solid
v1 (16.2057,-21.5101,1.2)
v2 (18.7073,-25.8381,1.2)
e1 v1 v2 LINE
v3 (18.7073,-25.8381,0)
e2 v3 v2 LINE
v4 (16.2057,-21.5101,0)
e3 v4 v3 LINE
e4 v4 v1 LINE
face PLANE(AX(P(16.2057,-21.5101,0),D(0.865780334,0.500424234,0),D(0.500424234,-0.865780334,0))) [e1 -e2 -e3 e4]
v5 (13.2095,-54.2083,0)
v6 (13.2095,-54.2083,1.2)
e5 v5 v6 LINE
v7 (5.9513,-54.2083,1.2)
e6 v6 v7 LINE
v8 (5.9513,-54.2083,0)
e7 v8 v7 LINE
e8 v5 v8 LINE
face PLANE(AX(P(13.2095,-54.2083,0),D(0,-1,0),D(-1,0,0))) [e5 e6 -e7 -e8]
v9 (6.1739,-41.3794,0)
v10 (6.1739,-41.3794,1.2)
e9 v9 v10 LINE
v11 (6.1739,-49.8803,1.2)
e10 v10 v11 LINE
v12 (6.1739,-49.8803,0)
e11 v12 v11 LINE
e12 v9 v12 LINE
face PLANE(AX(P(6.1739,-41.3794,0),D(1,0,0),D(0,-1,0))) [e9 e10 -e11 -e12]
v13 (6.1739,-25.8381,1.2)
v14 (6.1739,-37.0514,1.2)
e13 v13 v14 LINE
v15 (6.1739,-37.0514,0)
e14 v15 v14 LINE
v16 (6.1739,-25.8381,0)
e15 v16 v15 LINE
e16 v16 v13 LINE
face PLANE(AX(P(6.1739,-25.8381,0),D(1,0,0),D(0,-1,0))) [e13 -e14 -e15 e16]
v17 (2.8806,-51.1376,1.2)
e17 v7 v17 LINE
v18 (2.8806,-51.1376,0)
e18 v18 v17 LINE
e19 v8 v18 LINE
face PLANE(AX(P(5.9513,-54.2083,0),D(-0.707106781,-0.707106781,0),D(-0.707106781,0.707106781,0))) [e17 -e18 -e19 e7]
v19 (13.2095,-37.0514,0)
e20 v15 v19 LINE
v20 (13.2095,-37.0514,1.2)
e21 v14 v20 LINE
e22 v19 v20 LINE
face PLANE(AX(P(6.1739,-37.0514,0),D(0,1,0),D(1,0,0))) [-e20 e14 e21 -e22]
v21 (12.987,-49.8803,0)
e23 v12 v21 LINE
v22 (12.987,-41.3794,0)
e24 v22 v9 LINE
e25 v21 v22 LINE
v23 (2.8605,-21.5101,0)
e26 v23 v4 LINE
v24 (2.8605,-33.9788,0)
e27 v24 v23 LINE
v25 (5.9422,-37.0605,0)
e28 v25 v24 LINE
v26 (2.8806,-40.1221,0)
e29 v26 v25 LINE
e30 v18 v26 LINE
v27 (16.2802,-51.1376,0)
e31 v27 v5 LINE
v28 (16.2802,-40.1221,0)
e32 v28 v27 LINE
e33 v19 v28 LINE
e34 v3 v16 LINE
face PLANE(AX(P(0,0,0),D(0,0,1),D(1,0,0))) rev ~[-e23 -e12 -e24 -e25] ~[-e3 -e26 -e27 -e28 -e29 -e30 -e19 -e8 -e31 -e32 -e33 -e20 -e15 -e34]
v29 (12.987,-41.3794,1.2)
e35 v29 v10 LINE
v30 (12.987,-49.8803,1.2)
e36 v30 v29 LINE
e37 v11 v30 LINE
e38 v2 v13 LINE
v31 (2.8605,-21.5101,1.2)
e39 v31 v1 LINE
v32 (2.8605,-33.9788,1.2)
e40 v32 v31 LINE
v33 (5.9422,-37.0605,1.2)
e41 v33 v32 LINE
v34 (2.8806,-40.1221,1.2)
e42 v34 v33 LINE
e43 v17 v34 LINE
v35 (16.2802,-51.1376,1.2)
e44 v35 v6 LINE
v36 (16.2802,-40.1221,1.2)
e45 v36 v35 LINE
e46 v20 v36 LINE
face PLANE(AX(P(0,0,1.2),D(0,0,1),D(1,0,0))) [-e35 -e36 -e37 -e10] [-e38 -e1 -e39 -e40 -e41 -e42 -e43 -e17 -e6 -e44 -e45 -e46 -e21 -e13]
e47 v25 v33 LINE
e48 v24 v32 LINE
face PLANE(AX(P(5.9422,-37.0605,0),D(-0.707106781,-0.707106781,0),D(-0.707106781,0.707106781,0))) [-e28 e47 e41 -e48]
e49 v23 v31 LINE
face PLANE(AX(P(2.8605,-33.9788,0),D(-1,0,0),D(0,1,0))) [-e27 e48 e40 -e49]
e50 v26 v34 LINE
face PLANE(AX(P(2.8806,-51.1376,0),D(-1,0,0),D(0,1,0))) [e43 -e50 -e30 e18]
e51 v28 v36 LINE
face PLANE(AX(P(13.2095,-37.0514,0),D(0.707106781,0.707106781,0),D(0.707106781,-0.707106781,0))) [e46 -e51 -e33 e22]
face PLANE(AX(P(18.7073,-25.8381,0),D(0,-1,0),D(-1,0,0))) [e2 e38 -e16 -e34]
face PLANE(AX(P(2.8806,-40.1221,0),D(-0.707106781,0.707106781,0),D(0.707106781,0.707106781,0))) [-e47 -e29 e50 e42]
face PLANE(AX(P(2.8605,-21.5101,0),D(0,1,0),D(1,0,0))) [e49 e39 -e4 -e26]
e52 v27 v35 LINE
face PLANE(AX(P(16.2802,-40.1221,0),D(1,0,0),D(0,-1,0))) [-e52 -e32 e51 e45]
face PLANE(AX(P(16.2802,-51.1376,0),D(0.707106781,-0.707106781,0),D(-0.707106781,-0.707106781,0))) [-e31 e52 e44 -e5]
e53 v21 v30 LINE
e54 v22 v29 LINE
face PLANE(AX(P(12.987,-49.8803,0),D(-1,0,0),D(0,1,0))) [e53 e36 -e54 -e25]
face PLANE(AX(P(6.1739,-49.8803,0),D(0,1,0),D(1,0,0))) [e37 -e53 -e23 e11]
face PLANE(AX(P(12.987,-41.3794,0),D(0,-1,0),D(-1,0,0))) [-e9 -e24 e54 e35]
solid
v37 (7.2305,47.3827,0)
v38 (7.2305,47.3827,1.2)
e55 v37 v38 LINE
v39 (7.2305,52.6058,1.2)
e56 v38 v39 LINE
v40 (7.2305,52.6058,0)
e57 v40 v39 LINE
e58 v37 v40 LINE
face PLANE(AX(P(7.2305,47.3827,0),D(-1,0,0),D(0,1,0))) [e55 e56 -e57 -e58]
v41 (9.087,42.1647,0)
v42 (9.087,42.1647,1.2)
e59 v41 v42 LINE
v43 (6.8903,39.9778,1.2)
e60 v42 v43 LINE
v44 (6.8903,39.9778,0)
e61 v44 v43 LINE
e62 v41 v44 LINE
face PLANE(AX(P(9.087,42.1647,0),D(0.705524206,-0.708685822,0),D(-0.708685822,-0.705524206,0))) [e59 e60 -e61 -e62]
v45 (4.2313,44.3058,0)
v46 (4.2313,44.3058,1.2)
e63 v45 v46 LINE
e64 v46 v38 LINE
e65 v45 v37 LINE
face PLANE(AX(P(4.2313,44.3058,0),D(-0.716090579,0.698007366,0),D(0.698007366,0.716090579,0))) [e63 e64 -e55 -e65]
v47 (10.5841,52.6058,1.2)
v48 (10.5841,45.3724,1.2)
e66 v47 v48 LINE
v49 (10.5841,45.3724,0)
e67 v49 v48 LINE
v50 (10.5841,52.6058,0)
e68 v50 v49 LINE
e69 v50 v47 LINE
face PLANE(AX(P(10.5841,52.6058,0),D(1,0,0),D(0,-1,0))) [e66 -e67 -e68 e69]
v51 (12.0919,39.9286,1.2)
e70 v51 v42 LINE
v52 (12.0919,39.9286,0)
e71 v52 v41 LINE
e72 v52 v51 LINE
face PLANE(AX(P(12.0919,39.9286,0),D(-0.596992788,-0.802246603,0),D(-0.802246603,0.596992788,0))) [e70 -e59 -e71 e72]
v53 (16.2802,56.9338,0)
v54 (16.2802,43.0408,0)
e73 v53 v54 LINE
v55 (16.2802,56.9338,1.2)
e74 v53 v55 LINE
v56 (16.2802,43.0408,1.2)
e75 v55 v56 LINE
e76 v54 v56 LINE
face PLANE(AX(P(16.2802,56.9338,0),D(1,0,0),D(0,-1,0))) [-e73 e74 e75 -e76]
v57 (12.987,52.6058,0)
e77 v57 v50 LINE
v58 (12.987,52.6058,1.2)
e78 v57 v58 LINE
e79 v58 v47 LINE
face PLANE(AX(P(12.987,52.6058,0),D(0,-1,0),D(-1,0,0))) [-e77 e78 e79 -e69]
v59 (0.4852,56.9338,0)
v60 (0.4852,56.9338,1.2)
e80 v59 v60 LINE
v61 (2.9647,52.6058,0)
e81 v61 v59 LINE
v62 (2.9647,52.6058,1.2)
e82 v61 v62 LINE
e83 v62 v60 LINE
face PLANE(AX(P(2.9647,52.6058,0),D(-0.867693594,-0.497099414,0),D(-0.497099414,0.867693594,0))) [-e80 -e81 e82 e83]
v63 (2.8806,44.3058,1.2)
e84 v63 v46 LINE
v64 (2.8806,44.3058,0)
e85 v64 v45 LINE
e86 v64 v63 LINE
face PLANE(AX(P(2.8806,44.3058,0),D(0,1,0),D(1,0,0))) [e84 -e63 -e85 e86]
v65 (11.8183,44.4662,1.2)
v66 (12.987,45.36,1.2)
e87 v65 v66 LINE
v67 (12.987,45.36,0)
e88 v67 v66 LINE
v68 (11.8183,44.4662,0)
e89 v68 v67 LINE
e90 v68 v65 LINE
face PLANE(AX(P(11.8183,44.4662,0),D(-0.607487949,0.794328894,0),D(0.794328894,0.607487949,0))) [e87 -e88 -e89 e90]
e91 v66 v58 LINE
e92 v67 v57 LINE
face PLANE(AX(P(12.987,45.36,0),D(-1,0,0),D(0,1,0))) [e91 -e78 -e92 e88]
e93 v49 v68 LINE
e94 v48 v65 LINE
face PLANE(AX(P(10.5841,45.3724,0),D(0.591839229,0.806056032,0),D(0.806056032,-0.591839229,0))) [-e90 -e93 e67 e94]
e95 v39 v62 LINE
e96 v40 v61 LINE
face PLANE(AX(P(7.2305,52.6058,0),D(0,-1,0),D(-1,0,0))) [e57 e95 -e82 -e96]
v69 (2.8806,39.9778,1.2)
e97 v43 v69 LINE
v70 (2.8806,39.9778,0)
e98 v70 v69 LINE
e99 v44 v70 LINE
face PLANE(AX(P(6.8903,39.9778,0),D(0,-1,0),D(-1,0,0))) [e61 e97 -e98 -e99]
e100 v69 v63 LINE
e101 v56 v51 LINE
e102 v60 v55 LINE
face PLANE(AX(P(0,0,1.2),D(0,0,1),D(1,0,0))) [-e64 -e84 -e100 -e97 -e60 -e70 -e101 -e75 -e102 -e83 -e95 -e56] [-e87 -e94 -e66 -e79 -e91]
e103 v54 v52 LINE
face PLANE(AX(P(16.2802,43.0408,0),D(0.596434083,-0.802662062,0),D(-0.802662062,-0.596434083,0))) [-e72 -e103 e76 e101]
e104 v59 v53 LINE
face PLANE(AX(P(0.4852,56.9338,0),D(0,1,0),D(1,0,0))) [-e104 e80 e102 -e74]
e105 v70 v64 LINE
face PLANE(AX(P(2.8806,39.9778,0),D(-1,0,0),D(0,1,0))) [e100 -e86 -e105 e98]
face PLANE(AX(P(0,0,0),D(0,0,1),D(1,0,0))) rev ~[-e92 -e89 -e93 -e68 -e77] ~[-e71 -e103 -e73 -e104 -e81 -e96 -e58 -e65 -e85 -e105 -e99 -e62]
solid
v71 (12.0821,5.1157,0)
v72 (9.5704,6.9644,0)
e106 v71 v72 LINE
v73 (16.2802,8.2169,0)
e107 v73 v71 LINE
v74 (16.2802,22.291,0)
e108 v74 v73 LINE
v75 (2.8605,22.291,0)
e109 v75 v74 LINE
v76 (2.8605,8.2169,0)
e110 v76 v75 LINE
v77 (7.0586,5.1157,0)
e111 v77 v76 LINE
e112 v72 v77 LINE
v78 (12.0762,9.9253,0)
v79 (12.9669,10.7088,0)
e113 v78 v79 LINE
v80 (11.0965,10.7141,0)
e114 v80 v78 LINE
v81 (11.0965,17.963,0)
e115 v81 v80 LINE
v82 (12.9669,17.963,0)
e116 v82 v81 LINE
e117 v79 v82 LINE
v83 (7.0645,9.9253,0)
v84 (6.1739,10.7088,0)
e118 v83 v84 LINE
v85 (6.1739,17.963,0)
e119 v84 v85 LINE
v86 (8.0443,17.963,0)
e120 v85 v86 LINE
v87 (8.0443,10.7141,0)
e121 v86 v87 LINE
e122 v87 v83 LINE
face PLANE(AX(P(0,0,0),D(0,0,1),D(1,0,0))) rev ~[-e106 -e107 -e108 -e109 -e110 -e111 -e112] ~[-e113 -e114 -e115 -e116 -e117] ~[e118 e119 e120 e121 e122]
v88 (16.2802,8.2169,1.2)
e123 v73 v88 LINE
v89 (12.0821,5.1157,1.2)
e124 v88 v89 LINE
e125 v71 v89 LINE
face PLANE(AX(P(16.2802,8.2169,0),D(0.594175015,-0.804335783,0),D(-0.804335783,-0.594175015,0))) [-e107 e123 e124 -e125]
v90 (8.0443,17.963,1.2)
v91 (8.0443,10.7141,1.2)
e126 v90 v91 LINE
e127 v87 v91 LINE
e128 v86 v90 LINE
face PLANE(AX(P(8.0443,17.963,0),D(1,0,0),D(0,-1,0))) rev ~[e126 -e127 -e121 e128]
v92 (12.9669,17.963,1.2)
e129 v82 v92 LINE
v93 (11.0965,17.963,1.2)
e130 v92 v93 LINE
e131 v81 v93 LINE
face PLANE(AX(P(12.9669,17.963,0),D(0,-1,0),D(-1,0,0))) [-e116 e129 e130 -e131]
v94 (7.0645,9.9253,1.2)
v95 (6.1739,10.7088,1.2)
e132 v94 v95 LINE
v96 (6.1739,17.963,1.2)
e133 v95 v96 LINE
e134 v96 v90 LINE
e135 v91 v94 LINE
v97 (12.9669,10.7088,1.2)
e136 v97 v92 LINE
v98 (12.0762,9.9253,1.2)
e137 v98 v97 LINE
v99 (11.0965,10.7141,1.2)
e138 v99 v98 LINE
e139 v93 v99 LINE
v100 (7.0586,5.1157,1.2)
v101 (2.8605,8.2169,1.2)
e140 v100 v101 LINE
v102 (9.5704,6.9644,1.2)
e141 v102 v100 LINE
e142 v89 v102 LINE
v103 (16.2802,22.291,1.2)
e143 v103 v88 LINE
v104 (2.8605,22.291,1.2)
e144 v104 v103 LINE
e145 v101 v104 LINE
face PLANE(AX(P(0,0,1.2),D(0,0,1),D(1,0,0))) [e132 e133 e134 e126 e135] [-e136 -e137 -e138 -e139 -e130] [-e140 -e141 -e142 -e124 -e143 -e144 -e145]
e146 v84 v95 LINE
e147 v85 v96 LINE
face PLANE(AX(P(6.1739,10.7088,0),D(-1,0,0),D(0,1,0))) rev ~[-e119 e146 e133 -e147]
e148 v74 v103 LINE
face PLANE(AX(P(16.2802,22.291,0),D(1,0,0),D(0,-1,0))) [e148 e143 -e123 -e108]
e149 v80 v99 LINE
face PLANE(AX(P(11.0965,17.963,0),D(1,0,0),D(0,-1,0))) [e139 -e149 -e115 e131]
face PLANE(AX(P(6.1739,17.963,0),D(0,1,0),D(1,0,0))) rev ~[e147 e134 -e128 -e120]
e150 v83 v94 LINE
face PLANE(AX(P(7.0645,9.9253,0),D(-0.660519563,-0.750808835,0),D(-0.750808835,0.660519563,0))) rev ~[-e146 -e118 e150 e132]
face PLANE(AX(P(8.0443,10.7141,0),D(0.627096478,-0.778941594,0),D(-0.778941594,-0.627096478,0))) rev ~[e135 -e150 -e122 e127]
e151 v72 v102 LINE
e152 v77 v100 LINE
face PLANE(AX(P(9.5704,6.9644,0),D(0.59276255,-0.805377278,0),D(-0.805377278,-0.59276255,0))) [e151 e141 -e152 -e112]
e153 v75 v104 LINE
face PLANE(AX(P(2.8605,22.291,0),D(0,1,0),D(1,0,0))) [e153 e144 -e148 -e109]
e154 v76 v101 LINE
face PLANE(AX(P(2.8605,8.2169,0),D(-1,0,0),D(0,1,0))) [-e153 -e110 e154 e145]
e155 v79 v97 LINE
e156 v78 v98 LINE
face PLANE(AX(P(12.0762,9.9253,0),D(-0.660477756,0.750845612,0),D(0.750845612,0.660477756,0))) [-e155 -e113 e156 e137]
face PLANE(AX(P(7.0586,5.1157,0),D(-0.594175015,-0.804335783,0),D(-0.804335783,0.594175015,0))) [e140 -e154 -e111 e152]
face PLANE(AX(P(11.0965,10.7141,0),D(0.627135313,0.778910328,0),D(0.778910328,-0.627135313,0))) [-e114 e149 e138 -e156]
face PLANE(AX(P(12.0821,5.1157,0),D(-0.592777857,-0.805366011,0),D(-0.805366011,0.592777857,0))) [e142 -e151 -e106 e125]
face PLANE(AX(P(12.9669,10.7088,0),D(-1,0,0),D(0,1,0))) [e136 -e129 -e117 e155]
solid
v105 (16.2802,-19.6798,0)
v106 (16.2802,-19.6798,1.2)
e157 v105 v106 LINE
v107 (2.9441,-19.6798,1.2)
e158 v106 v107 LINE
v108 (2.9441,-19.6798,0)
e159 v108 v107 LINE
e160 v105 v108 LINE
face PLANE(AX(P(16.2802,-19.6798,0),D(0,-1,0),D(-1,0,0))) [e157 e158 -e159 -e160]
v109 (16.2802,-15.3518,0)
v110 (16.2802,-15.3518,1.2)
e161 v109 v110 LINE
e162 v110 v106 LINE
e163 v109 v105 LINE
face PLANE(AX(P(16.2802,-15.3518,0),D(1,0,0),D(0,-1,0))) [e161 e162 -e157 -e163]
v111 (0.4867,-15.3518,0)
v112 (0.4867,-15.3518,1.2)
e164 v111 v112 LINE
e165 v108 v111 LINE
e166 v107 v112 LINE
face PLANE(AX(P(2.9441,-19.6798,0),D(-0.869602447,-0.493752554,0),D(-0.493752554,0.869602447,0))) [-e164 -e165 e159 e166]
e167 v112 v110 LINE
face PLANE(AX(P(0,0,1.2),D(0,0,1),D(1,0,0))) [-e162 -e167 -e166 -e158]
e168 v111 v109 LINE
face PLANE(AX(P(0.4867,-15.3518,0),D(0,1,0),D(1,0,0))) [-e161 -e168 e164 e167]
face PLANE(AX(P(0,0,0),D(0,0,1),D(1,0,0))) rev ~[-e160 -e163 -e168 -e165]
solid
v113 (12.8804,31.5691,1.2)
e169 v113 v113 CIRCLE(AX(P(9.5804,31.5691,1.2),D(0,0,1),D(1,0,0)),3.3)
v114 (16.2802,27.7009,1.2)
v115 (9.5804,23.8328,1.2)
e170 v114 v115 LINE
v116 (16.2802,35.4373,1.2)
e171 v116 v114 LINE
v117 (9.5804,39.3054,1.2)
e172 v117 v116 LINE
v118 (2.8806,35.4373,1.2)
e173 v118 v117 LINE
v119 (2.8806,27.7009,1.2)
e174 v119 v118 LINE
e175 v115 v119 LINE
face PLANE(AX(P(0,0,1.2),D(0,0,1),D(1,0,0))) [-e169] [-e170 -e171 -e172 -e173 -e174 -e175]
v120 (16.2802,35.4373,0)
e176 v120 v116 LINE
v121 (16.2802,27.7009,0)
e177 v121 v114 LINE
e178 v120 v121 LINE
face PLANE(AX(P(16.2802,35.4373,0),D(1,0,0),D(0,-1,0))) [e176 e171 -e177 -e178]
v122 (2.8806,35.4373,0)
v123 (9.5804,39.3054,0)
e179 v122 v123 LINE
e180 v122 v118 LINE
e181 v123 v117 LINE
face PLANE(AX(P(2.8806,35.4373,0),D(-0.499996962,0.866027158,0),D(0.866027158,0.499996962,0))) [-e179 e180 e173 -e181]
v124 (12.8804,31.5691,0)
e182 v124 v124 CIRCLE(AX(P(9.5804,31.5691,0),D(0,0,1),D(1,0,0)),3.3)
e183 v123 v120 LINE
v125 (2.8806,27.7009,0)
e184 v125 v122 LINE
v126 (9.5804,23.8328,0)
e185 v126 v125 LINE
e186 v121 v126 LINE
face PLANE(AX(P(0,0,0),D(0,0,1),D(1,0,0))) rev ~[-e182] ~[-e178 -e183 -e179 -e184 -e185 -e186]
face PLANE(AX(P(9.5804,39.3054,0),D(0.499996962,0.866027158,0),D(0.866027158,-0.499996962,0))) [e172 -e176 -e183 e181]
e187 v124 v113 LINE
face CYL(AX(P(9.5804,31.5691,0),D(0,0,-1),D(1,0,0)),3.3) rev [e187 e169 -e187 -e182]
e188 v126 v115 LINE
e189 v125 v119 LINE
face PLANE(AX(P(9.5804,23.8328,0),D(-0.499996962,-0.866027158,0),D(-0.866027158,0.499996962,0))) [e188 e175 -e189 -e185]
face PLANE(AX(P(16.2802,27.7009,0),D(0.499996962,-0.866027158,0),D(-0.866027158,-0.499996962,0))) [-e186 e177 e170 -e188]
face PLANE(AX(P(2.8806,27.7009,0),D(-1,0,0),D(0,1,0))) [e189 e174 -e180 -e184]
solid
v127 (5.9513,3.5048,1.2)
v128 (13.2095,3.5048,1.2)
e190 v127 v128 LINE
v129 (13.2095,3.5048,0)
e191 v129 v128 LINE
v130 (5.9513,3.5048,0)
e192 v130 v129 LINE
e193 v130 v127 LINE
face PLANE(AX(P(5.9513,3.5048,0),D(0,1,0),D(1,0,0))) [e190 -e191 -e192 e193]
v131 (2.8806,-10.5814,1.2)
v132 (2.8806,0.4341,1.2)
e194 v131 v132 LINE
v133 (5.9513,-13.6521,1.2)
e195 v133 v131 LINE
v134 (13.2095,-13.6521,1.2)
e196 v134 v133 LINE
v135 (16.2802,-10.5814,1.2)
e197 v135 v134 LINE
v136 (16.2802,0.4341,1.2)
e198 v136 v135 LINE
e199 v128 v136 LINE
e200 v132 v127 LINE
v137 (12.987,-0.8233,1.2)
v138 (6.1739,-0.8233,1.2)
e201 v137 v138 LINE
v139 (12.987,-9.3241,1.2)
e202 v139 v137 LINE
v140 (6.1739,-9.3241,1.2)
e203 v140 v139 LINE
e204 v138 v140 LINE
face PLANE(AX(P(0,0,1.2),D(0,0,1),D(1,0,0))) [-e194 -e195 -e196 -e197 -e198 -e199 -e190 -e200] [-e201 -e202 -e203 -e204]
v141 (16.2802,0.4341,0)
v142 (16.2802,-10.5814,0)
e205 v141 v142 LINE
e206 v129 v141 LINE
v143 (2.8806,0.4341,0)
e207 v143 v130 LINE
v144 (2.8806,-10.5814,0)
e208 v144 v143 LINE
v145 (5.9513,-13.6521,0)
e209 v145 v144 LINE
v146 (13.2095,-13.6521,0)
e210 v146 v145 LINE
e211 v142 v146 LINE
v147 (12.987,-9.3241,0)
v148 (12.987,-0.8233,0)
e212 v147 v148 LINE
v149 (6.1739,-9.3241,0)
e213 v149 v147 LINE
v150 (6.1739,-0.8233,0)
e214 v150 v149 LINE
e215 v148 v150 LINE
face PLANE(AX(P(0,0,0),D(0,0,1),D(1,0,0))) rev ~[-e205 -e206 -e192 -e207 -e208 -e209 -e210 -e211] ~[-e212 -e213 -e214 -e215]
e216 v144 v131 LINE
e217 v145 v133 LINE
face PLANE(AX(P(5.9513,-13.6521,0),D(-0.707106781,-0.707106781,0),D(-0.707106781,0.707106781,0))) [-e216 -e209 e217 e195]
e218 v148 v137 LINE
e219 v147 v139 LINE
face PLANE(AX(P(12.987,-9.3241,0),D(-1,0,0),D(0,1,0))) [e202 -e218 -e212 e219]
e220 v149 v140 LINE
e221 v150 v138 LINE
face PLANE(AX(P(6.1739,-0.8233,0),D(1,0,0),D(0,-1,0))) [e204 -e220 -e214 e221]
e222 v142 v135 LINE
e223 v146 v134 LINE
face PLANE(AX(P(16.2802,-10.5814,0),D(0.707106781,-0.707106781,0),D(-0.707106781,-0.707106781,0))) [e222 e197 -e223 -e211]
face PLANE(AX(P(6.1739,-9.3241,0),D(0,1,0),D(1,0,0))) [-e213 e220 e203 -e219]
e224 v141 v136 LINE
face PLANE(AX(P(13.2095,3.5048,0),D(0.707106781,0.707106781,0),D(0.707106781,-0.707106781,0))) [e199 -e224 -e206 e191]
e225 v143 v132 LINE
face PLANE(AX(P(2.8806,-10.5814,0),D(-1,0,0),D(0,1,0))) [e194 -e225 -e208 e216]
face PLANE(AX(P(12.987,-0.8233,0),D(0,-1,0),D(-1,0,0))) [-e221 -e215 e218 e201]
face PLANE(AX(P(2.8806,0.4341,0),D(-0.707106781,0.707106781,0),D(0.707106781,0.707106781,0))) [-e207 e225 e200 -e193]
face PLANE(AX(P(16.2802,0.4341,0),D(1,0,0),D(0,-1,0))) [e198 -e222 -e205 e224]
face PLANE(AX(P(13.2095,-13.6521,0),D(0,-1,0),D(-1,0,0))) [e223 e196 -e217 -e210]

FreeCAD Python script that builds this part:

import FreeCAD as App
import Part
import Sketcher
from FreeCAD import Vector
Q = App.Units.Quantity

doc = App.newDocument("Part")
body = doc.addObject("PartDesign::Body", "Body")
body.AllowCompound = True

sketch1 = body.newObject("Sketcher::SketchObject", "Sketch")
sketch1.AttachmentSupport = (doc.getObject("XY_Plane"), [""])
sketch1.MapMode = "FlatFace"
sketch1.addGeometry(Part.LineSegment(Vector(2.9647, 52.6058, 0), Vector(7.2305, 52.6058, 0)), False)
sketch1.addGeometry(Part.LineSegment(Vector(7.2305, 52.6058, 0), Vector(7.2305, 47.3827, 0)), False)
sketch1.addGeometry(Part.LineSegment(Vector(7.2305, 47.3827, 0), Vector(4.2313, 44.3058, 0)), False)
sketch1.addGeometry(Part.LineSegment(Vector(4.2313, 44.3058, 0), Vector(2.8806, 44.3058, 0)), False)
sketch1.addGeometry(Part.LineSegment(Vector(2.8806, 44.3058, 0), Vector(2.8806, 39.9778, 0)), False)
sketch1.addGeometry(Part.LineSegment(Vector(2.8806, 39.9778, 0), Vector(6.8903, 39.9778, 0)), False)
sketch1.addGeometry(Part.LineSegment(Vector(6.8903, 39.9778, 0), Vector(9.087, 42.1647, 0)), False)
sketch1.addGeometry(Part.LineSegment(Vector(9.087, 42.1647, 0), Vector(12.0919, 39.9286, 0)), False)
sketch1.addGeometry(Part.LineSegment(Vector(12.0919, 39.9286, 0), Vector(16.2802, 43.0408, 0)), False)
sketch1.addGeometry(Part.LineSegment(Vector(16.2802, 43.0408, 0), Vector(16.2802, 56.9338, 0)), False)
sketch1.addGeometry(Part.LineSegment(Vector(16.2802, 56.9338, 0), Vector(0.4852, 56.9338, 0)), False)
sketch1.addGeometry(Part.LineSegment(Vector(0.4852, 56.9338, 0), Vector(2.9647, 52.6058, 0)), False)
sketch1.addGeometry(Part.LineSegment(Vector(12.987, 45.36, 0), Vector(11.8183, 44.4662, 0)), False)
sketch1.addGeometry(Part.LineSegment(Vector(11.8183, 44.4662, 0), Vector(10.5841, 45.3724, 0)), False)
sketch1.addGeometry(Part.LineSegment(Vector(10.5841, 45.3724, 0), Vector(10.5841, 52.6058, 0)), False)
sketch1.addGeometry(Part.LineSegment(Vector(10.5841, 52.6058, 0), Vector(12.987, 52.6058, 0)), False)
sketch1.addGeometry(Part.LineSegment(Vector(12.987, 52.6058, 0), Vector(12.987, 45.36, 0)), False)
sketch1.addGeometry(Part.LineSegment(Vector(16.2802, 35.4373, 0), Vector(9.5804, 39.3054, 0)), False)
sketch1.addGeometry(Part.LineSegment(Vector(9.5804, 39.3054, 0), Vector(2.8806, 35.4373, 0)), False)
sketch1.addGeometry(Part.LineSegment(Vector(2.8806, 35.4373, 0), Vector(2.8806, 27.7009, 0)), False)
sketch1.addGeometry(Part.LineSegment(Vector(2.8806, 27.7009, 0), Vector(9.5804, 23.8328, 0)), False)
sketch1.addGeometry(Part.LineSegment(Vector(9.5804, 23.8328, 0), Vector(16.2802, 27.7009, 0)), False)
sketch1.addGeometry(Part.LineSegment(Vector(16.2802, 27.7009, 0), Vector(16.2802, 35.4373, 0)), False)
sketch1.addGeometry(Part.Circle(Vector(9.5804, 31.5691, 0), Vector(0, 0, 1), 3.3), False)
sketch1.addGeometry(Part.LineSegment(Vector(16.2802, 8.2169, 0), Vector(16.2802, 22.291, 0)), False)
sketch1.addGeometry(Part.LineSegment(Vector(16.2802, 22.291, 0), Vector(2.8605, 22.291, 0)), False)
sketch1.addGeometry(Part.LineSegment(Vector(2.8605, 22.291, 0), Vector(2.8605, 8.2169, 0)), False)
sketch1.addGeometry(Part.LineSegment(Vector(2.8605, 8.2169, 0), Vector(7.0586, 5.1157, 0)), False)
sketch1.addGeometry(Part.LineSegment(Vector(7.0586, 5.1157, 0), Vector(9.5704, 6.9644, 0)), False)
sketch1.addGeometry(Part.LineSegment(Vector(9.5704, 6.9644, 0), Vector(12.0821, 5.1157, 0)), False)
sketch1.addGeometry(Part.LineSegment(Vector(12.0821, 5.1157, 0), Vector(16.2802, 8.2169, 0)), False)
sketch1.addGeometry(Part.LineSegment(Vector(6.1739, 17.963, 0), Vector(8.0443, 17.963, 0)), False)
sketch1.addGeometry(Part.LineSegment(Vector(8.0443, 17.963, 0), Vector(8.0443, 10.7141, 0)), False)
sketch1.addGeometry(Part.LineSegment(Vector(8.0443, 10.7141, 0), Vector(7.0645, 9.9253, 0)), False)
sketch1.addGeometry(Part.LineSegment(Vector(7.0645, 9.9253, 0), Vector(6.1739, 10.7088, 0)), False)
sketch1.addGeometry(Part.LineSegment(Vector(6.1739, 10.7088, 0), Vector(6.1739, 17.963, 0)), False)
sketch1.addGeometry(Part.LineSegment(Vector(12.0762, 9.9253, 0), Vector(11.0965, 10.7141, 0)), False)
sketch1.addGeometry(Part.LineSegment(Vector(11.0965, 10.7141, 0), Vector(11.0965, 17.963, 0)), False)
sketch1.addGeometry(Part.LineSegment(Vector(11.0965, 17.963, 0), Vector(12.9669, 17.963, 0)), False)
sketch1.addGeometry(Part.LineSegment(Vector(12.9669, 17.963, 0), Vector(12.9669, 10.7088, 0)), False)
sketch1.addGeometry(Part.LineSegment(Vector(12.9669, 10.7088, 0), Vector(12.0762, 9.9253, 0)), False)
sketch1.addGeometry(Part.LineSegment(Vector(16.2802, 0.4341, 0), Vector(13.2095, 3.5048, 0)), False)
sketch1.addGeometry(Part.LineSegment(Vector(13.2095, 3.5048, 0), Vector(5.9513, 3.5048, 0)), False)
sketch1.addGeometry(Part.LineSegment(Vector(5.9513, 3.5048, 0), Vector(2.8806, 0.4341, 0)), False)
sketch1.addGeometry(Part.LineSegment(Vector(2.8806, 0.4341, 0), Vector(2.8806, -10.5814, 0)), False)
sketch1.addGeometry(Part.LineSegment(Vector(2.8806, -10.5814, 0), Vector(5.9513, -13.6521, 0)), False)
sketch1.addGeometry(Part.LineSegment(Vector(5.9513, -13.6521, 0), Vector(13.2095, -13.6521, 0)), False)
sketch1.addGeometry(Part.LineSegment(Vector(13.2095, -13.6521, 0), Vector(16.2802, -10.5814, 0)), False)
sketch1.addGeometry(Part.LineSegment(Vector(16.2802, -10.5814, 0), Vector(16.2802, 0.4341, 0)), False)
sketch1.addGeometry(Part.LineSegment(Vector(6.1739, -9.3241, 0), Vector(6.1739, -0.8233, 0)), False)
sketch1.addGeometry(Part.LineSegment(Vector(6.1739, -0.8233, 0), Vector(12.987, -0.8233, 0)), False)
sketch1.addGeometry(Part.LineSegment(Vector(12.987, -0.8233, 0), Vector(12.987, -9.3241, 0)), False)
sketch1.addGeometry(Part.LineSegment(Vector(12.987, -9.3241, 0), Vector(6.1739, -9.3241, 0)), False)
sketch1.addGeometry(Part.LineSegment(Vector(16.2802, -19.6798, 0), Vector(16.2802, -15.3518, 0)), False)
sketch1.addGeometry(Part.LineSegment(Vector(16.2802, -15.3518, 0), Vector(0.4867, -15.3518, 0)), False)
sketch1.addGeometry(Part.LineSegment(Vector(0.4867, -15.3518, 0), Vector(2.9441, -19.6798, 0)), False)
sketch1.addGeometry(Part.LineSegment(Vector(2.9441, -19.6798, 0), Vector(16.2802, -19.6798, 0)), False)
sketch1.addGeometry(Part.LineSegment(Vector(13.2095, -37.0514, 0), Vector(6.1739, -37.0514, 0)), False)
sketch1.addGeometry(Part.LineSegment(Vector(6.1739, -37.0514, 0), Vector(6.1739, -25.8381, 0)), False)
sketch1.addGeometry(Part.LineSegment(Vector(6.1739, -25.8381, 0), Vector(18.7073, -25.8381, 0)), False)
sketch1.addGeometry(Part.LineSegment(Vector(18.7073, -25.8381, 0), Vector(16.2057, -21.5101, 0)), False)
sketch1.addGeometry(Part.LineSegment(Vector(16.2057, -21.5101, 0), Vector(2.8605, -21.5101, 0)), False)
sketch1.addGeometry(Part.LineSegment(Vector(2.8605, -21.5101, 0), Vector(2.8605, -33.9788, 0)), False)
sketch1.addGeometry(Part.LineSegment(Vector(2.8605, -33.9788, 0), Vector(5.9422, -37.0605, 0)), False)
sketch1.addGeometry(Part.LineSegment(Vector(5.9422, -37.0605, 0), Vector(2.8806, -40.1221, 0)), False)
sketch1.addGeometry(Part.LineSegment(Vector(2.8806, -40.1221, 0), Vector(2.8806, -51.1376, 0)), False)
sketch1.addGeometry(Part.LineSegment(Vector(2.8806, -51.1376, 0), Vector(5.9513, -54.2083, 0)), False)
sketch1.addGeometry(Part.LineSegment(Vector(5.9513, -54.2083, 0), Vector(13.2095, -54.2083, 0)), False)
sketch1.addGeometry(Part.LineSegment(Vector(13.2095, -54.2083, 0), Vector(16.2802, -51.1376, 0)), False)
sketch1.addGeometry(Part.LineSegment(Vector(16.2802, -51.1376, 0), Vector(16.2802, -40.1221, 0)), False)
sketch1.addGeometry(Part.LineSegment(Vector(16.2802, -40.1221, 0), Vector(13.2095, -37.0514, 0)), False)
sketch1.addGeometry(Part.LineSegment(Vector(6.1739, -49.8803, 0), Vector(6.1739, -41.3794, 0)), False)
sketch1.addGeometry(Part.LineSegment(Vector(6.1739, -41.3794, 0), Vector(12.987, -41.3794, 0)), False)
sketch1.addGeometry(Part.LineSegment(Vector(12.987, -41.3794, 0), Vector(12.987, -49.8803, 0)), False)
sketch1.addGeometry(Part.LineSegment(Vector(12.987, -49.8803, 0), Vector(6.1739, -49.8803, 0)), False)
sketch1.addConstraint(Sketcher.Constraint("Coincident", 0, 2, 1, 1))
sketch1.addConstraint(Sketcher.Constraint("Coincident", 1, 2, 2, 1))
sketch1.addConstraint(Sketcher.Constraint("Coincident", 2, 2, 3, 1))
sketch1.addConstraint(Sketcher.Constraint("Coincident", 3, 2, 4, 1))
sketch1.addConstraint(Sketcher.Constraint("Coincident", 4, 2, 5, 1))
sketch1.addConstraint(Sketcher.Constraint("Coincident", 5, 2, 6, 1))
sketch1.addConstraint(Sketcher.Constraint("Coincident", 6, 2, 7, 1))
sketch1.addConstraint(Sketcher.Constraint("Coincident", 7, 2, 8, 1))
sketch1.addConstraint(Sketcher.Constraint("Coincident", 8, 2, 9, 1))
sketch1.addConstraint(Sketcher.Constraint("Coincident", 9, 2, 10, 1))
sketch1.addConstraint(Sketcher.Constraint("Coincident", 10, 2, 11, 1))
sketch1.addConstraint(Sketcher.Constraint("Coincident", 11, 2, 0, 1))
sketch1.addConstraint(Sketcher.Constraint("Coincident", 12, 2, 13, 1))
sketch1.addConstraint(Sketcher.Constraint("Coincident", 13, 2, 14, 1))
sketch1.addConstraint(Sketcher.Constraint("Coincident", 14, 2, 15, 1))
sketch1.addConstraint(Sketcher.Constraint("Coincident", 15, 2, 16, 1))
sketch1.addConstraint(Sketcher.Constraint("Coincident", 16, 2, 12, 1))
sketch1.addConstraint(Sketcher.Constraint("Coincident", 17, 2, 18, 1))
sketch1.addConstraint(Sketcher.Constraint("Coincident", 18, 2, 19, 1))
sketch1.addConstraint(Sketcher.Constraint("Coincident", 19, 2, 20, 1))
sketch1.addConstraint(Sketcher.Constraint("Coincident", 20, 2, 21, 1))
sketch1.addConstraint(Sketcher.Constraint("Coincident", 21, 2, 22, 1))
sketch1.addConstraint(Sketcher.Constraint("Coincident", 22, 2, 17, 1))
sketch1.addConstraint(Sketcher.Constraint("Coincident", 24, 2, 25, 1))
sketch1.addConstraint(Sketcher.Constraint("Coincident", 25, 2, 26, 1))
sketch1.addConstraint(Sketcher.Constraint("Coincident", 26, 2, 27, 1))
sketch1.addConstraint(Sketcher.Constraint("Coincident", 27, 2, 28, 1))
sketch1.addConstraint(Sketcher.Constraint("Coincident", 28, 2, 29, 1))
sketch1.addConstraint(Sketcher.Constraint("Coincident", 29, 2, 30, 1))
sketch1.addConstraint(Sketcher.Constraint("Coincident", 30, 2, 24, 1))
sketch1.addConstraint(Sketcher.Constraint("Coincident", 31, 2, 32, 1))
sketch1.addConstraint(Sketcher.Constraint("Coincident", 32, 2, 33, 1))
sketch1.addConstraint(Sketcher.Constraint("Coincident", 33, 2, 34, 1))
sketch1.addConstraint(Sketcher.Constraint("Coincident", 34, 2, 35, 1))
sketch1.addConstraint(Sketcher.Constraint("Coincident", 35, 2, 31, 1))
sketch1.addConstraint(Sketcher.Constraint("Coincident", 36, 2, 37, 1))
sketch1.addConstraint(Sketcher.Constraint("Coincident", 37, 2, 38, 1))
sketch1.addConstraint(Sketcher.Constraint("Coincident", 38, 2, 39, 1))
sketch1.addConstraint(Sketcher.Constraint("Coincident", 39, 2, 40, 1))
sketch1.addConstraint(Sketcher.Constraint("Coincident", 40, 2, 36, 1))
sketch1.addConstraint(Sketcher.Constraint("Coincident", 41, 2, 42, 1))
sketch1.addConstraint(Sketcher.Constraint("Coincident", 42, 2, 43, 1))
sketch1.addConstraint(Sketcher.Constraint("Coincident", 43, 2, 44, 1))
sketch1.addConstraint(Sketcher.Constraint("Coincident", 44, 2, 45, 1))
sketch1.addConstraint(Sketcher.Constraint("Coincident", 45, 2, 46, 1))
sketch1.addConstraint(Sketcher.Constraint("Coincident", 46, 2, 47, 1))
sketch1.addConstraint(Sketcher.Constraint("Coincident", 47, 2, 48, 1))
sketch1.addConstraint(Sketcher.Constraint("Coincident", 48, 2, 41, 1))
sketch1.addConstraint(Sketcher.Constraint("Coincident", 49, 2, 50, 1))
sketch1.addConstraint(Sketcher.Constraint("Coincident", 50, 2, 51, 1))
sketch1.addConstraint(Sketcher.Constraint("Coincident", 51, 2, 52, 1))
sketch1.addConstraint(Sketcher.Constraint("Coincident", 52, 2, 49, 1))
sketch1.addConstraint(Sketcher.Constraint("Coincident", 53, 2, 54, 1))
sketch1.addConstraint(Sketcher.Constraint("Coincident", 54, 2, 55, 1))
sketch1.addConstraint(Sketcher.Constraint("Coincident", 55, 2, 56, 1))
sketch1.addConstraint(Sketcher.Constraint("Coincident", 56, 2, 53, 1))
sketch1.addConstraint(Sketcher.Constraint("Coincident", 57, 2, 58, 1))
sketch1.addConstraint(Sketcher.Constraint("Coincident", 58, 2, 59, 1))
sketch1.addConstraint(Sketcher.Constraint("Coincident", 59, 2, 60, 1))
sketch1.addConstraint(Sketcher.Constraint("Coincident", 60, 2, 61, 1))
sketch1.addConstraint(Sketcher.Constraint("Coincident", 61, 2, 62, 1))
sketch1.addConstraint(Sketcher.Constraint("Coincident", 62, 2, 63, 1))
sketch1.addConstraint(Sketcher.Constraint("Coincident", 63, 2, 64, 1))
sketch1.addConstraint(Sketcher.Constraint("Coincident", 64, 2, 65, 1))
sketch1.addConstraint(Sketcher.Constraint("Coincident", 65, 2, 66, 1))
sketch1.addConstraint(Sketcher.Constraint("Coincident", 66, 2, 67, 1))
sketch1.addConstraint(Sketcher.Constraint("Coincident", 67, 2, 68, 1))
sketch1.addConstraint(Sketcher.Constraint("Coincident", 68, 2, 69, 1))
sketch1.addConstraint(Sketcher.Constraint("Coincident", 69, 2, 70, 1))
sketch1.addConstraint(Sketcher.Constraint("Coincident", 70, 2, 57, 1))
sketch1.addConstraint(Sketcher.Constraint("Coincident", 71, 2, 72, 1))
sketch1.addConstraint(Sketcher.Constraint("Coincident", 72, 2, 73, 1))
sketch1.addConstraint(Sketcher.Constraint("Coincident", 73, 2, 74, 1))
sketch1.addConstraint(Sketcher.Constraint("Coincident", 74, 2, 71, 1))
sketch1.addConstraint(Sketcher.Constraint("Horizontal", 0))
sketch1.addConstraint(Sketcher.Constraint("Vertical", 1))
sketch1.addConstraint(Sketcher.Constraint("Horizontal", 3))
sketch1.addConstraint(Sketcher.Constraint("Vertical", 4))
sketch1.addConstraint(Sketcher.Constraint("Horizontal", 5))
sketch1.addConstraint(Sketcher.Constraint("Vertical", 9))
sketch1.addConstraint(Sketcher.Constraint("Horizontal", 10))
sketch1.addConstraint(Sketcher.Constraint("Vertical", 14))
sketch1.addConstraint(Sketcher.Constraint("Horizontal", 15))
sketch1.addConstraint(Sketcher.Constraint("Vertical", 16))
sketch1.addConstraint(Sketcher.Constraint("Vertical", 19))
sketch1.addConstraint(Sketcher.Constraint("Vertical", 22))
sketch1.addConstraint(Sketcher.Constraint("Vertical", 24))
sketch1.addConstraint(Sketcher.Constraint("Horizontal", 25))
sketch1.addConstraint(Sketcher.Constraint("Vertical", 26))
sketch1.addConstraint(Sketcher.Constraint("Horizontal", 31))
sketch1.addConstraint(Sketcher.Constraint("Vertical", 32))
sketch1.addConstraint(Sketcher.Constraint("Vertical", 35))
sketch1.addConstraint(Sketcher.Constraint("Vertical", 37))
sketch1.addConstraint(Sketcher.Constraint("Horizontal", 38))
sketch1.addConstraint(Sketcher.Constraint("Vertical", 39))
sketch1.addConstraint(Sketcher.Constraint("Horizontal", 42))
sketch1.addConstraint(Sketcher.Constraint("Vertical", 44))
sketch1.addConstraint(Sketcher.Constraint("Horizontal", 46))
sketch1.addConstraint(Sketcher.Constraint("Vertical", 48))
sketch1.addConstraint(Sketcher.Constraint("Vertical", 49))
sketch1.addConstraint(Sketcher.Constraint("Horizontal", 50))
sketch1.addConstraint(Sketcher.Constraint("Vertical", 51))
sketch1.addConstraint(Sketcher.Constraint("Horizontal", 52))
sketch1.addConstraint(Sketcher.Constraint("Vertical", 53))
sketch1.addConstraint(Sketcher.Constraint("Horizontal", 54))
sketch1.addConstraint(Sketcher.Constraint("Horizontal", 56))
sketch1.addConstraint(Sketcher.Constraint("Horizontal", 57))
sketch1.addConstraint(Sketcher.Constraint("Vertical", 58))
sketch1.addConstraint(Sketcher.Constraint("Horizontal", 59))
sketch1.addConstraint(Sketcher.Constraint("Horizontal", 61))
sketch1.addConstraint(Sketcher.Constraint("Vertical", 62))
sketch1.addConstraint(Sketcher.Constraint("Vertical", 65))
sketch1.addConstraint(Sketcher.Constraint("Horizontal", 67))
sketch1.addConstraint(Sketcher.Constraint("Vertical", 69))
sketch1.addConstraint(Sketcher.Constraint("Vertical", 71))
sketch1.addConstraint(Sketcher.Constraint("Horizontal", 72))
sketch1.addConstraint(Sketcher.Constraint("Vertical", 73))
sketch1.addConstraint(Sketcher.Constraint("Horizontal", 74))
sketch1.addConstraint(Sketcher.Constraint("Diameter", 23, Q("6.6 mm")))
sketch1.addConstraint(Sketcher.Constraint("DistanceX", 10, 2, 10, 1, Q("15.795 mm")))
sketch1.addConstraint(Sketcher.Constraint("DistanceX", 15, 1, 15, 2, Q("2.403 mm")))
sketch1.addConstraint(Sketcher.Constraint("DistanceX", 50, 1, 50, 2, Q("6.813 mm")))
sketch1.addConstraint(Sketcher.Constraint("DistanceX", 56, 1, 56, 2, Q("13.336 mm")))
sketch1.addConstraint(Sketcher.Constraint("DistanceX", 72, 1, 72, 2, Q("6.813 mm")))
sketch1.addConstraint(Sketcher.Constraint("DistanceY", 1, 2, 1, 1, Q("5.223 mm")))
sketch1.addConstraint(Sketcher.Constraint("DistanceY", 4, 2, 4, 1, Q("4.328 mm")))
sketch1.addConstraint(Sketcher.Constraint("DistanceY", 9, 1, 9, 2, Q("13.893 mm")))
sketch1.addConstraint(Sketcher.Constraint("DistanceY", 24, 1, 24, 2, Q("14.074 mm")))
sketch1.addConstraint(Sketcher.Constraint("DistanceY", 26, 2, 26, 1, Q("14.074 mm")))
sketch1.addConstraint(Sketcher.Constraint("DistanceY", 32, 2, 32, 1, Q("7.249 mm")))
sketch1.addConstraint(Sketcher.Constraint("DistanceY", 37, 1, 37, 2, Q("7.249 mm")))
sketch1.addConstraint(Sketcher.Constraint("DistanceY", 53, 1, 53, 2, Q("4.328 mm")))
sketch1.addConstraint(Sketcher.Constraint("DistanceY", 71, 1, 71, 2, Q("8.501 mm")))
sketch1.addConstraint(Sketcher.Constraint("DistanceY", -1, 1, 16, 2, Q("45.36 mm")))
sketch1.addConstraint(Sketcher.Constraint("DistanceY", 60, 2, -1, 1, Q("21.51 mm")))
sketch1.addConstraint(Sketcher.Constraint("Distance", 8, Q("5.218 mm")))
sketch1.addConstraint(Sketcher.Constraint("Distance", 11, Q("4.988 mm")))
sketch1.addConstraint(Sketcher.Constraint("Distance", 55, Q("4.977 mm")))
sketch1.addConstraint(Sketcher.Constraint("Distance", 60, Q("4.999 mm")))
sketch1.addConstraint(Sketcher.Constraint("DistanceX", 0, 1, 0, 2, Q("4.2658 mm")))
sketch1.addConstraint(Sketcher.Constraint("DistanceX", 3, 2, 3, 1, Q("1.3507 mm")))
sketch1.addConstraint(Sketcher.Constraint("DistanceX", 5, 1, 5, 2, Q("4.0097 mm")))
sketch1.addConstraint(Sketcher.Constraint("DistanceX", 25, 2, 25, 1, Q("13.4197 mm")))
sketch1.addConstraint(Sketcher.Constraint("DistanceX", 31, 1, 31, 2, Q("1.8704 mm")))
sketch1.addConstraint(Sketcher.Constraint("DistanceX", 38, 1, 38, 2, Q("1.8704 mm")))
sketch1.addConstraint(Sketcher.Constraint("DistanceX", 42, 2, 42, 1, Q("7.2582 mm")))
sketch1.addConstraint(Sketcher.Constraint("DistanceX", 46, 1, 46, 2, Q("7.2582 mm")))
sketch1.addConstraint(Sketcher.Constraint("DistanceX", 57, 2, 57, 1, Q("7.0356 mm")))
sketch1.addConstraint(Sketcher.Constraint("DistanceX", 59, 1, 59, 2, Q("12.5334 mm")))
sketch1.addConstraint(Sketcher.Constraint("DistanceX", 61, 2, 61, 1, Q("13.3452 mm")))
sketch1.addConstraint(Sketcher.Constraint("DistanceX", 67, 1, 67, 2, Q("7.2582 mm")))
sketch1.addConstraint(Sketcher.Constraint("DistanceY", 14, 1, 14, 2, Q("7.2334 mm")))
sketch1.addConstraint(Sketcher.Constraint("DistanceY", 16, 2, 16, 1, Q("7.2458 mm")))
sketch1.addConstraint(Sketcher.Constraint("DistanceY", 19, 2, 19, 1, Q("7.7364 mm")))
sketch1.addConstraint(Sketcher.Constraint("DistanceY", 22, 1, 22, 2, Q("7.7364 mm")))
sketch1.addConstraint(Sketcher.Constraint("DistanceY", 35, 1, 35, 2, Q("7.2542 mm")))
sketch1.addConstraint(Sketcher.Constraint("DistanceY", 39, 2, 39, 1, Q("7.2542 mm")))
sketch1.addConstraint(Sketcher.Constraint("DistanceY", 44, 2, 44, 1, Q("11.0155 mm")))
sketch1.addConstraint(Sketcher.Constraint("DistanceY", 48, 1, 48, 2, Q("11.0155 mm")))
sketch1.addConstraint(Sketcher.Constraint("DistanceY", 49, 1, 49, 2, Q("8.5008 mm")))
sketch1.addConstraint(Sketcher.Constraint("DistanceY", 58, 1, 58, 2, Q("11.2133 mm")))
sketch1.addConstraint(Sketcher.Constraint("DistanceY", 62, 2, 62, 1, Q("12.4687 mm")))
sketch1.addConstraint(Sketcher.Constraint("DistanceY", 65, 2, 65, 1, Q("11.0155 mm")))
sketch1.addConstraint(Sketcher.Constraint("DistanceY", 69, 1, 69, 2, Q("11.0155 mm")))
sketch1.addConstraint(Sketcher.Constraint("DistanceY", -1, 1, 23, 3, Q("31.569 mm")))
sketch1.addConstraint(Sketcher.Constraint("DistanceX", -1, 1, 6, 2, Q("9.087 mm")))
sketch1.addConstraint(Sketcher.Constraint("DistanceX", -1, 1, 7, 2, Q("12.092 mm")))
sketch1.addConstraint(Sketcher.Constraint("DistanceX", -1, 1, 13, 2, Q("10.584 mm")))
sketch1.addConstraint(Sketcher.Constraint("DistanceY", -1, 1, 19, 2, Q("27.701 mm")))
sketch1.addConstraint(Sketcher.Constraint("DistanceY", -1, 1, 21, 2, Q("27.701 mm")))
sketch1.addConstraint(Sketcher.Constraint("DistanceY", -1, 1, 24, 2, Q("22.291 mm")))
sketch1.addConstraint(Sketcher.Constraint("DistanceX", -1, 1, 29, 2, Q("12.082 mm")))
sketch1.addConstraint(Sketcher.Constraint("DistanceY", -1, 1, 31, 2, Q("17.963 mm")))
sketch1.addConstraint(Sketcher.Constraint("DistanceX", -1, 1, 34, 2, Q("6.174 mm")))
sketch1.addConstraint(Sketcher.Constraint("DistanceY", -1, 1, 36, 2, Q("10.714 mm")))
sketch1.addConstraint(Sketcher.Constraint("DistanceX", -1, 1, 38, 2, Q("12.967 mm")))
sketch1.addConstraint(Sketcher.Constraint("DistanceY", -1, 1, 43, 2, Q("0.434 mm")))
sketch1.addConstraint(Sketcher.Constraint("DistanceY", 45, 2, -1, 1, Q("13.652 mm")))
sketch1.addConstraint(Sketcher.Constraint("DistanceY", -1, 1, 48, 2, Q("0.434 mm")))
sketch1.addConstraint(Sketcher.Constraint("DistanceX", -1, 1, 49, 2, Q("6.174 mm")))
sketch1.addConstraint(Sketcher.Constraint("DistanceY", 51, 2, -1, 1, Q("9.324 mm")))
sketch1.addConstraint(Sketcher.Constraint("DistanceX", -1, 1, 55, 2, Q("2.944 mm")))
sketch1.addConstraint(Sketcher.Constraint("DistanceX", -1, 1, 57, 2, Q("6.174 mm")))
sketch1.addConstraint(Sketcher.Constraint("DistanceY", 58, 2, -1, 1, Q("25.838 mm")))
sketch1.addConstraint(Sketcher.Constraint("DistanceY", 64, 2, -1, 1, Q("40.122 mm")))
sketch1.addConstraint(Sketcher.Constraint("DistanceY", 69, 2, -1, 1, Q("40.122 mm")))
sketch1.addConstraint(Sketcher.Constraint("DistanceX", -1, 1, 71, 2, Q("6.174 mm")))
sketch1.addConstraint(Sketcher.Constraint("Distance", 2, Q("4.2968 mm")))
sketch1.addConstraint(Sketcher.Constraint("Distance", 6, Q("3.0997 mm")))
sketch1.addConstraint(Sketcher.Constraint("Distance", 7, Q("3.7456 mm")))
sketch1.addConstraint(Sketcher.Constraint("Distance", 12, Q("1.4713 mm")))
sketch1.addConstraint(Sketcher.Constraint("Distance", 13, Q("1.5312 mm")))
sketch1.addConstraint(Sketcher.Constraint("Distance", 17, Q("7.7362 mm")))
sketch1.addConstraint(Sketcher.Constraint("Distance", 18, Q("7.7362 mm")))
sketch1.addConstraint(Sketcher.Constraint("Distance", 20, Q("7.7362 mm")))
sketch1.addConstraint(Sketcher.Constraint("Distance", 21, Q("7.7362 mm")))
sketch1.addConstraint(Sketcher.Constraint("Distance", 27, Q("5.2193 mm")))
sketch1.addConstraint(Sketcher.Constraint("Distance", 28, Q("3.1188 mm")))
sketch1.addConstraint(Sketcher.Constraint("Distance", 29, Q("3.1187 mm")))
sketch1.addConstraint(Sketcher.Constraint("Distance", 30, Q("5.2193 mm")))
sketch1.addConstraint(Sketcher.Constraint("Distance", 33, Q("1.2579 mm")))
sketch1.addConstraint(Sketcher.Constraint("Distance", 34, Q("1.1862 mm")))
sketch1.addConstraint(Sketcher.Constraint("Distance", 36, Q("1.2578 mm")))
sketch1.addConstraint(Sketcher.Constraint("Distance", 40, Q("1.1863 mm")))
sketch1.addConstraint(Sketcher.Constraint("Distance", 41, Q("4.3426 mm")))
sketch1.addConstraint(Sketcher.Constraint("Distance", 43, Q("4.3426 mm")))
sketch1.addConstraint(Sketcher.Constraint("Distance", 45, Q("4.3426 mm")))
sketch1.addConstraint(Sketcher.Constraint("Distance", 47, Q("4.3426 mm")))
sketch1.addConstraint(Sketcher.Constraint("Distance", 63, Q("4.3582 mm")))
sketch1.addConstraint(Sketcher.Constraint("Distance", 64, Q("4.3298 mm")))
sketch1.addConstraint(Sketcher.Constraint("Distance", 66, Q("4.3426 mm")))
sketch1.addConstraint(Sketcher.Constraint("Distance", 68, Q("4.3426 mm")))
sketch1.addConstraint(Sketcher.Constraint("Distance", 70, Q("4.3426 mm")))
sketch1.addConstraint(Sketcher.Constraint("DistanceX", -1, 1, 23, 3, Q("9.5804 mm")))
sketch1.addConstraint(Sketcher.Constraint("DistanceX", -1, 1, 0, 2, Q("7.2305 mm")))
sketch1.addConstraint(Sketcher.Constraint("DistanceY", -1, 1, 0, 2, Q("52.6058 mm")))
sketch1.addConstraint(Sketcher.Constraint("DistanceX", -1, 1, 2, 2, Q("4.2313 mm")))
sketch1.addConstraint(Sketcher.Constraint("DistanceX", -1, 1, 17, 2, Q("9.5804 mm")))
sketch1.addConstraint(Sketcher.Constraint("DistanceY", -1, 1, 17, 2, Q("39.3054 mm")))
sketch1.addConstraint(Sketcher.Constraint("DistanceX", -1, 1, 24, 2, Q("16.2802 mm")))
sketch1.addConstraint(Sketcher.Constraint("DistanceX", -1, 1, 27, 2, Q("7.0586 mm")))
sketch1.addConstraint(Sketcher.Constraint("DistanceX", -1, 1, 41, 2, Q("13.2095 mm")))
sketch1.addConstraint(Sketcher.Constraint("DistanceY", 53, 2, -1, 1, Q("15.3518 mm")))
sketch1.addConstraint(Sketcher.Constraint("DistanceX", -1, 1, 63, 2, Q("5.9422 mm")))
sketch1.addConstraint(Sketcher.Constraint("DistanceY", 71, 2, -1, 1, Q("41.3794 mm")))
pad1 = body.newObject("PartDesign::Pad", "Pad")
pad1.Profile = sketch1
pad1.Length = 1.2

doc.recompute()
